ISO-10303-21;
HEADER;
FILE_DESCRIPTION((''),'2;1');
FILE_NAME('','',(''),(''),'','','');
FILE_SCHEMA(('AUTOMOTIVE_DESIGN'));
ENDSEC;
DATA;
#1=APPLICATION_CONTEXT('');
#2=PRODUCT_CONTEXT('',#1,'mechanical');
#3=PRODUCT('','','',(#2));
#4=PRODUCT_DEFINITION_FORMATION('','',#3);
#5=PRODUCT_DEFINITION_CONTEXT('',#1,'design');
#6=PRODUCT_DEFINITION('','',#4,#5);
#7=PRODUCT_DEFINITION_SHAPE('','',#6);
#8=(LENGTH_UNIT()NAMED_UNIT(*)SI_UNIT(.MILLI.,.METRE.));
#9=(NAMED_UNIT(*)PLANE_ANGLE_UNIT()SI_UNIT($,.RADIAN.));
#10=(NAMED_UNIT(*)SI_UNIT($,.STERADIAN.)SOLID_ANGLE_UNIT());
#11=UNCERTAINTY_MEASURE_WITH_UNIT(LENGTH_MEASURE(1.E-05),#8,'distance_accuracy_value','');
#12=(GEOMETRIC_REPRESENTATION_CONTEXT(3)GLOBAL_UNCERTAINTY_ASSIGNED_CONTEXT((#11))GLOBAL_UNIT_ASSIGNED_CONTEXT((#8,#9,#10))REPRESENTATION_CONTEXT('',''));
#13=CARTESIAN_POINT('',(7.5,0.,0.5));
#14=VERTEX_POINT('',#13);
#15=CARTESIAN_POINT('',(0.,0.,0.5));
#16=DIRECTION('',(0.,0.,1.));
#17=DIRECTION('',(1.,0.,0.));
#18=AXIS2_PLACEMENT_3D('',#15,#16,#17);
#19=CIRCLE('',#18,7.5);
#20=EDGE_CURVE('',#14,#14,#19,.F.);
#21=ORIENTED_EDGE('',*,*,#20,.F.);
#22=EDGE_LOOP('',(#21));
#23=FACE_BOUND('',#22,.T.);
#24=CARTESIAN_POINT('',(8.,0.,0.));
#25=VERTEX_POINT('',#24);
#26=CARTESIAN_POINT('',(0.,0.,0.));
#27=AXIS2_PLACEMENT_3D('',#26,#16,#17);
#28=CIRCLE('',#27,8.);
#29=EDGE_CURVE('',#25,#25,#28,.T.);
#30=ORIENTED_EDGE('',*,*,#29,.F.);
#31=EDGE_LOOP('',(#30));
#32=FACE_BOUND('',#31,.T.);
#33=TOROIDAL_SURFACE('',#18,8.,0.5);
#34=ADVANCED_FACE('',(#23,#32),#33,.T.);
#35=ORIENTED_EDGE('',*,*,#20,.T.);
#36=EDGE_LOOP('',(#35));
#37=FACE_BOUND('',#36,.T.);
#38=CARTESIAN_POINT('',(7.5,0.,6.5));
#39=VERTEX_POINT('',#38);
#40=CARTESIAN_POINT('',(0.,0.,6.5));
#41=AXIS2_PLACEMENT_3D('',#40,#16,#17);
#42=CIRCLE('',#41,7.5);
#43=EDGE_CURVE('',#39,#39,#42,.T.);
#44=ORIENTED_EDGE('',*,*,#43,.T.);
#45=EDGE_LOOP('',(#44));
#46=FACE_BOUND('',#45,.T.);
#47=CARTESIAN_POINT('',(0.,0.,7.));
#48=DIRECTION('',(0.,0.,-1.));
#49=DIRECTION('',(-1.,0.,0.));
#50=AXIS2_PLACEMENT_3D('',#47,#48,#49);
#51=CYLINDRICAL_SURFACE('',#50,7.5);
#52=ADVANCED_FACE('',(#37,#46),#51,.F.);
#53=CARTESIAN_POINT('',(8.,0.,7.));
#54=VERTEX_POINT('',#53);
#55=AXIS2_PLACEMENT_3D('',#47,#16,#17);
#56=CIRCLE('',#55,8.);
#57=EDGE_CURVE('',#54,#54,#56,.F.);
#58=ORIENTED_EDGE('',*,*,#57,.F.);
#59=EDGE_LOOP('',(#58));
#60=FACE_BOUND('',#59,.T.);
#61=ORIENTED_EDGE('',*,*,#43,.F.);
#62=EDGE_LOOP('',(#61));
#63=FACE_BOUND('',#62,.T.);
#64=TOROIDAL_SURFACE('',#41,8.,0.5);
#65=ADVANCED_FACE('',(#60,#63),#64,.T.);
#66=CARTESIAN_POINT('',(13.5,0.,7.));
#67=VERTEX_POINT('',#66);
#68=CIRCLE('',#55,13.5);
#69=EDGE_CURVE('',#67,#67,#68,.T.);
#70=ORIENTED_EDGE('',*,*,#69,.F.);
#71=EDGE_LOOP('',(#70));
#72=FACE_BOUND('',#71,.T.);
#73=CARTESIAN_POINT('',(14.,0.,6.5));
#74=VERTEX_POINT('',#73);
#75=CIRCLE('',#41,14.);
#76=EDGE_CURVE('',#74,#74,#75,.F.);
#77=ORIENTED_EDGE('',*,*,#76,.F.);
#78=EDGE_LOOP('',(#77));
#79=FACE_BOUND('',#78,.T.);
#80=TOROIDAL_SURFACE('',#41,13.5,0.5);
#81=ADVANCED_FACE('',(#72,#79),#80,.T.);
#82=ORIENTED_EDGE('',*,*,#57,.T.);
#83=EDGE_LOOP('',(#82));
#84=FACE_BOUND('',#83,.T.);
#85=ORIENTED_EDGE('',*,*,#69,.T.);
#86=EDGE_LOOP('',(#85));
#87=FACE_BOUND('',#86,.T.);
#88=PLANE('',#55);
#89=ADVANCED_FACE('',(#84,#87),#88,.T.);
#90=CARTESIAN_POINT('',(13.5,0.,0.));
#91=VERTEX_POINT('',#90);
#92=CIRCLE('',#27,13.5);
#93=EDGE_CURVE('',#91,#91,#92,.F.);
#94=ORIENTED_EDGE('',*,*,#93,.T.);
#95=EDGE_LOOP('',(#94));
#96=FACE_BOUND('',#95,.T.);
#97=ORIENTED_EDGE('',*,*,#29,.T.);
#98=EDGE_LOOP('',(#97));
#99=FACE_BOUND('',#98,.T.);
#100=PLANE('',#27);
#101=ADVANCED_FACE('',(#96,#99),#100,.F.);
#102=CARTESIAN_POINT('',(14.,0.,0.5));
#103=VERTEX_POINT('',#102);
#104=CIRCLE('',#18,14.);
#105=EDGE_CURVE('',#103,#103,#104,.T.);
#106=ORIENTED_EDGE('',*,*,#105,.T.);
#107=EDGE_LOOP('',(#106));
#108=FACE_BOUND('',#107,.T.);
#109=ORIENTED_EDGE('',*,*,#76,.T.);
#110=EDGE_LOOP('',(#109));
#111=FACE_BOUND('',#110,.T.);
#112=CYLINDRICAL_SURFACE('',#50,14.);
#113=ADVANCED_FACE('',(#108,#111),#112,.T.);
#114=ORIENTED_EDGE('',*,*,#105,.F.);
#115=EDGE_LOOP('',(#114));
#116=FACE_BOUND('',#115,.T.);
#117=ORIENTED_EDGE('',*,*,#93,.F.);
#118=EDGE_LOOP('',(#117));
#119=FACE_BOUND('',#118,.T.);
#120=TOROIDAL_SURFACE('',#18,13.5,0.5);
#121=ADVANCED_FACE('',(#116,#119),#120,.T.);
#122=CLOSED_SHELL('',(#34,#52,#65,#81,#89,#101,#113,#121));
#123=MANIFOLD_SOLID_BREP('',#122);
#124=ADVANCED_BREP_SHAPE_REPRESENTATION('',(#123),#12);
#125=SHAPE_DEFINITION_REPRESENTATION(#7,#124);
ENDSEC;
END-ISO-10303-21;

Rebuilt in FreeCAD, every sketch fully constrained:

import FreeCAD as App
import Part
import Sketcher
Q = App.Units.Quantity


def edges_at(feature, points):
    """Names of the edges that pass closest to the given points."""
    edges = feature.Shape.Edges
    near = lambda p: min(range(len(edges)), key=lambda i: edges[i].distToShape(Part.Vertex(*p))[0])
    return sorted({f"Edge{near(p) + 1}" for p in points})

doc = App.newDocument("Part")
body = doc.addObject("PartDesign::Body", "Body")

sketch1 = body.newObject("Sketcher::SketchObject", "Sketch")
sketch1.AttachmentSupport = (doc.getObject("XY_Plane"), [""])
sketch1.MapMode = "FlatFace"
sketch1.addGeometry(Part.Circle(App.Vector(0, 0, 0), App.Vector(0, 0, 1), 14), False)
sketch1.addGeometry(Part.Circle(App.Vector(0, 0, 0), App.Vector(0, 0, 1), 8), False)
sketch1.addConstraint(Sketcher.Constraint("Coincident", 0, 3, -1, 1))
sketch1.addConstraint(Sketcher.Constraint("Coincident", 1, 3, -1, 1))
sketch1.addConstraint(Sketcher.Constraint("Diameter", 0, Q("28 mm")))
sketch1.addConstraint(Sketcher.Constraint("Diameter", 1, Q("15 mm")))
pad1 = body.newObject("PartDesign::Pad", "Pad")
pad1.Profile = sketch1
pad1.Length = 7
doc.recompute()

fillet = body.newObject("PartDesign::Fillet", "Fillet")
fillet.Base = (pad1, edges_at(pad1, [
    (-14, 0, 0),
    (-14, 0, 7),
    (-7.5, 0, 0),
    (-7.5, 0, 7),
]))
fillet.Radius = 0.5

doc.recompute()
